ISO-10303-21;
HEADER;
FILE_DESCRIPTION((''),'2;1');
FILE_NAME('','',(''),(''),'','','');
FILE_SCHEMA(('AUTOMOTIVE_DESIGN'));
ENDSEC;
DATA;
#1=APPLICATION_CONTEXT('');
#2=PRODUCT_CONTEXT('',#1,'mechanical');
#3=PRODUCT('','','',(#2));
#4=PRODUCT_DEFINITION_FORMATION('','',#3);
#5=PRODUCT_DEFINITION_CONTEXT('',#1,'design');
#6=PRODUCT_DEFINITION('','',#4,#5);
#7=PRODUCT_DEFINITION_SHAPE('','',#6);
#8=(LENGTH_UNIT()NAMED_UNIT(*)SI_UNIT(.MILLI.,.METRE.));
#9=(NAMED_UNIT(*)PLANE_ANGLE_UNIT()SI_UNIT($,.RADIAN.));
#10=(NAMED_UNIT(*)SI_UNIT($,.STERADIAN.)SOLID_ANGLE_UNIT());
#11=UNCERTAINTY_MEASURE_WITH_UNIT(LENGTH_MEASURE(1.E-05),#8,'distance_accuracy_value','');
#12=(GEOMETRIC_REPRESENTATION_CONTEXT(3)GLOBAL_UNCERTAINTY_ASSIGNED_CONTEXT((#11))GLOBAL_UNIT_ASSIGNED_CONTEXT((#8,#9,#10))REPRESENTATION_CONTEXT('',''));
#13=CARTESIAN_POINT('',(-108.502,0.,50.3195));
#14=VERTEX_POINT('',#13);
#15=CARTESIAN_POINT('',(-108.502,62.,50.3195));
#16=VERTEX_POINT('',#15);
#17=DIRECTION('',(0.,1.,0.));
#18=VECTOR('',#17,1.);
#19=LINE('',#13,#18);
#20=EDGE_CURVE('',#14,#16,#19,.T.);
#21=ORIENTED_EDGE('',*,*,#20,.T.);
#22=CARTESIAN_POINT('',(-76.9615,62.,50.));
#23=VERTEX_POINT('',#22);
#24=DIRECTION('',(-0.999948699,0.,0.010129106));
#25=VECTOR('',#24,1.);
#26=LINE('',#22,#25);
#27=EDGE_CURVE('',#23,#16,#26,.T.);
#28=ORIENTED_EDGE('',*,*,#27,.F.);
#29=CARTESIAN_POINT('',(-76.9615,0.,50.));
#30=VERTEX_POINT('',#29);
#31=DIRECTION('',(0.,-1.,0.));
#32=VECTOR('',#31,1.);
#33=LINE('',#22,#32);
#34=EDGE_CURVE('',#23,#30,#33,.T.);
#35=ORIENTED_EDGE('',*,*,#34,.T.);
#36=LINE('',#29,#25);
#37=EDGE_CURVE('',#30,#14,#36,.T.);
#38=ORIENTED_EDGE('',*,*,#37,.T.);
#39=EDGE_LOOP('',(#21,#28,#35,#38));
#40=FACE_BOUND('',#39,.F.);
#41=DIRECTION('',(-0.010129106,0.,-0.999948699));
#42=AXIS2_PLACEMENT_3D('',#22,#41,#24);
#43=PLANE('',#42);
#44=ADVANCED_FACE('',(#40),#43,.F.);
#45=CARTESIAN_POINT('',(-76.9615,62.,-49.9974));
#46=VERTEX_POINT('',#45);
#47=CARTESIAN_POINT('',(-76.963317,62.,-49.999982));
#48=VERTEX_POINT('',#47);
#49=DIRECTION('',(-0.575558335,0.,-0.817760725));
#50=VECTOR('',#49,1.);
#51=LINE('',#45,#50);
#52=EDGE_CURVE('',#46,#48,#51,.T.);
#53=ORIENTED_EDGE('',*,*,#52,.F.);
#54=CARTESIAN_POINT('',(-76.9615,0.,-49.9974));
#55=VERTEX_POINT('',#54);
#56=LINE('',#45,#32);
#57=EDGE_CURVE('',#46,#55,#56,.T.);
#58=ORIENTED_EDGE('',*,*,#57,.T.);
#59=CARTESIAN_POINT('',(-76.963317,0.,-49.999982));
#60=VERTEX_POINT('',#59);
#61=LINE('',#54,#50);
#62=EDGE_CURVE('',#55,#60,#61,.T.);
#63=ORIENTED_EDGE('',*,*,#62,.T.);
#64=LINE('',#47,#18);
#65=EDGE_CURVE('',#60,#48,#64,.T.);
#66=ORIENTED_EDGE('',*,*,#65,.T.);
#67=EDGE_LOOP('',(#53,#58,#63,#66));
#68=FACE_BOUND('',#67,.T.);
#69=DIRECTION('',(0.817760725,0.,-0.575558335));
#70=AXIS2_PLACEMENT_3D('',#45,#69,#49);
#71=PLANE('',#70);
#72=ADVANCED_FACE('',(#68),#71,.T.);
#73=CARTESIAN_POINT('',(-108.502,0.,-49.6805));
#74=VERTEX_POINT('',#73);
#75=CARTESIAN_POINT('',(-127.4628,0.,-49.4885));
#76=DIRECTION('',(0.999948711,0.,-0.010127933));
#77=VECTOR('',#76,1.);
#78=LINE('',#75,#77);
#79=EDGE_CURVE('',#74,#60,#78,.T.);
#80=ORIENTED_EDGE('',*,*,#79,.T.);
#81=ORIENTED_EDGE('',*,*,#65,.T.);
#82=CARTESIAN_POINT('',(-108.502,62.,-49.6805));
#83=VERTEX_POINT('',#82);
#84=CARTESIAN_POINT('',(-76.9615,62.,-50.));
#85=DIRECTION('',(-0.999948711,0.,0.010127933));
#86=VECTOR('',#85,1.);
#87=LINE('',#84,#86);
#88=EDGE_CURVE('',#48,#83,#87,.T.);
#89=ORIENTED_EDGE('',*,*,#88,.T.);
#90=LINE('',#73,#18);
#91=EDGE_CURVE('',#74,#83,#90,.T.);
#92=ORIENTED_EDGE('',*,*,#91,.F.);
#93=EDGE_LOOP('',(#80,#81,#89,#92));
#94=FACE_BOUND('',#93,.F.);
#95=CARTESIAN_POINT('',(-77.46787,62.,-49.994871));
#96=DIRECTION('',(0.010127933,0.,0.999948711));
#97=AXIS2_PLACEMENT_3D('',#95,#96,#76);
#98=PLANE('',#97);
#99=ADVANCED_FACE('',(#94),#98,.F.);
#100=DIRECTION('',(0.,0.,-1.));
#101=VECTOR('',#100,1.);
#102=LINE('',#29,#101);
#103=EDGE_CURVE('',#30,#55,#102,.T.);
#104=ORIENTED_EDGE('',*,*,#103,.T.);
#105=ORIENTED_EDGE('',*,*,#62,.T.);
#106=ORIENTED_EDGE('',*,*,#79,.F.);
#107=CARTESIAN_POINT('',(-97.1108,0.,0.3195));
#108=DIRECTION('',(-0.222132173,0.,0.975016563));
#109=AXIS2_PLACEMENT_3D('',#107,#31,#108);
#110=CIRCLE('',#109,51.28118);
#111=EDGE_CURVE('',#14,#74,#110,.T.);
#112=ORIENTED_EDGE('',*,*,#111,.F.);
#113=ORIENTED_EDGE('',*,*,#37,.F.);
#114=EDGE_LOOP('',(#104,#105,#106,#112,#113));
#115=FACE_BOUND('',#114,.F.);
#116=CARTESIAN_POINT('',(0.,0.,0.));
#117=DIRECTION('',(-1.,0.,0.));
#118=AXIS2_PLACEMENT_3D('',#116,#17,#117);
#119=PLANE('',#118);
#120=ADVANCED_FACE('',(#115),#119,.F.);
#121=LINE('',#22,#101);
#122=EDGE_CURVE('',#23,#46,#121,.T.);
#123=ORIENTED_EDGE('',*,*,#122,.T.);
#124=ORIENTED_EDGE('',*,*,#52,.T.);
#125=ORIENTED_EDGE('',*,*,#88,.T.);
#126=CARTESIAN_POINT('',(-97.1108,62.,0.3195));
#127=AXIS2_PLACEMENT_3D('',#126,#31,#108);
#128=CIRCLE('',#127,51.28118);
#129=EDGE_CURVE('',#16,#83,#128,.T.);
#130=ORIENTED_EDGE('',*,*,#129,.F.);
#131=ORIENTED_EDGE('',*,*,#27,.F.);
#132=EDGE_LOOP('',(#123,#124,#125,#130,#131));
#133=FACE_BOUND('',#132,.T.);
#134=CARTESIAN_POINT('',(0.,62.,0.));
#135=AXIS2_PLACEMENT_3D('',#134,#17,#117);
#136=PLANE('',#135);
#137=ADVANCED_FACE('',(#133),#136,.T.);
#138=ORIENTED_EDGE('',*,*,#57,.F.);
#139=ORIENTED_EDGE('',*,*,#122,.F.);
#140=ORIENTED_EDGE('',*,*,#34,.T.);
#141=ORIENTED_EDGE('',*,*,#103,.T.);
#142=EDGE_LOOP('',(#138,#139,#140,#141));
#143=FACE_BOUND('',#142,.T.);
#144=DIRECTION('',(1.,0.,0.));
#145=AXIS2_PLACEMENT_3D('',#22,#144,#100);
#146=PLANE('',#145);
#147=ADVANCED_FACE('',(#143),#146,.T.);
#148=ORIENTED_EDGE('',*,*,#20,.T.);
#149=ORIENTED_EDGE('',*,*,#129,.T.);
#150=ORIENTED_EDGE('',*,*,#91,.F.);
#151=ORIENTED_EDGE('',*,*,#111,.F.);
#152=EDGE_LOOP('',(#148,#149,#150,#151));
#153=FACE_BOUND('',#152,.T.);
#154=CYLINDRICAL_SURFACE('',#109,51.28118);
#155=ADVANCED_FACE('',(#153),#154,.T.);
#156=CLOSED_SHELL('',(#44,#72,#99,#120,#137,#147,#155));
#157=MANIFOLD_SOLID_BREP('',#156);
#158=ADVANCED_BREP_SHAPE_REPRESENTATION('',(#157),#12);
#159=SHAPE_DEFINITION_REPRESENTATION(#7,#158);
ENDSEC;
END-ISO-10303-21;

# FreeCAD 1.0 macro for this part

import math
import FreeCAD as App
import Part
import Sketcher

V = App.Vector
Q = App.Units.Quantity


def add_polygon(sketch, points):
    """Adds a closed chain of lines whose ends are joined by coincident constraints."""
    first, n = sketch.GeometryCount, len(points)
    for a, b in zip(points, points[1:] + points[:1]):
        sketch.addGeometry(Part.LineSegment(App.Vector(*a, 0), App.Vector(*b, 0)), False)
    for i in range(n):
        sketch.addConstraint(Sketcher.Constraint("Coincident", first + i, 2, first + (i + 1) % n, 1))

doc = App.newDocument("Part")
body = doc.addObject("PartDesign::Body", "Body")

# Sketch on XZ plane
sketch1 = body.newObject("Sketcher::SketchObject", "Sketch")
sketch1.AttachmentSupport = (doc.getObject("XZ_Plane"), [""])
sketch1.MapMode = "FlatFace"
add_polygon(sketch1, [(-25, -100), (-25, 100), (25, 100), (25, -100)])  # lines 0-3
sketch1.addConstraint([
    Sketcher.Constraint("Vertical", 0),
    Sketcher.Constraint("Horizontal", 1),
    Sketcher.Constraint("Vertical", 2),
    Sketcher.Constraint("Horizontal", 3),
    Sketcher.Constraint("Symmetric", 0, 2, 2, 2, -1, 1),
    Sketcher.Constraint("DistanceX", 1, 1, 1, 2, Q("50 mm")),
    Sketcher.Constraint("DistanceY", 0, 1, 0, 2, Q("200 mm")),
])
pad1 = body.newObject("PartDesign::Pad", "Pad")
pad1.Profile = sketch1
pad1.Length = 62
pad1.Reversed = True

# Sketch on XY plane
sketch2 = body.newObject("Sketcher::SketchObject", "Sketch001")
sketch2.AttachmentSupport = (doc.getObject("XY_Plane"), [""])
sketch2.MapMode = "FlatFace"
sketch2.AttachmentOffset = App.Placement(V(0, 0, 100), App.Rotation())
add_polygon(sketch2, [(65, 62), (25, 62), (25, 0), (28.2, 0), (65, 42)])  # lines 0-4
sketch2.addConstraint([
    Sketcher.Constraint("Horizontal", 0),
    Sketcher.Constraint("Vertical", 1),
    Sketcher.Constraint("Horizontal", 2),
    Sketcher.Constraint("Vertical", 4),
    Sketcher.Constraint("PointOnObject", 1, 2, -1),
    Sketcher.Constraint("DistanceX", 0, 2, 0, 1, Q("40 mm")),
    Sketcher.Constraint("DistanceY", 4, 1, 4, 2, Q("20 mm")),
    Sketcher.Constraint("DistanceY", 1, 2, 1, 1, Q("62 mm")),
    Sketcher.Constraint("DistanceX", -1, 1, 0, 2, Q("25 mm")),
    Sketcher.Constraint("DistanceX", 2, 1, 2, 2, Q("3.229 mm")),
])
pad2 = body.newObject("PartDesign::Pad", "Pad001")
pad2.Profile = sketch2
pad2.Length = 200
pad2.Reversed = True

# Sketch on XZ plane
sketch3 = body.newObject("Sketcher::SketchObject", "Sketch002")
sketch3.AttachmentSupport = (doc.getObject("XZ_Plane"), [""])
sketch3.MapMode = "FlatFace"
sketch3.AttachmentOffset = App.Placement(V(0, 0, -62), App.Rotation())
sketch3.addGeometry([
    Part.LineSegment(V(-25, 80, 0), V(-25, -80, 0)),  # 0
    Part.LineSegment(V(-25, -80, 0), V(-77, -50, 0)),  # 1
    Part.LineSegment(V(-77, -50, 0), V(-127, -49, 0)),  # 2
    Part.ArcOfCircle(Part.Circle(V(-127, 1, 0), V(0, 0, 1), 50), math.radians(89), math.radians(269)),  # 3
    Part.LineSegment(V(-126, 51, 0), V(-77, 50, 0)),  # 4
    Part.LineSegment(V(-77, 50, 0), V(-25, 80, 0)),  # 5
], False)
sketch3.addConstraint([
    Sketcher.Constraint("Coincident", 0, 2, 1, 1),
    Sketcher.Constraint("Coincident", 1, 2, 2, 1),
    Sketcher.Constraint("Tangent", 2, 2, 3, 2),
    Sketcher.Constraint("Tangent", 3, 1, 4, 1),
    Sketcher.Constraint("Coincident", 4, 2, 5, 1),
    Sketcher.Constraint("Coincident", 5, 2, 0, 1),
    Sketcher.Constraint("Vertical", 0),
    Sketcher.Constraint("Symmetric", 1, 2, 4, 2, -1),
    Sketcher.Constraint("Parallel", 2, 4),
    Sketcher.Constraint("Equal", 1, 5),
    Sketcher.Constraint("Distance", 1, Q("60 mm")),
    Sketcher.Constraint("DistanceY", 0, 2, 0, 1, Q("160 mm")),
    Sketcher.Constraint("Angle", 1, Q("150 deg")),
    Sketcher.Constraint("DistanceX", 0, 2, -1, 1, Q("25 mm")),
    Sketcher.Constraint("Angle", 2, Q("179.4197 deg")),
    Sketcher.Constraint("DistanceX", 3, 1, -1, 1, Q("126.45 mm")),
])
pad3 = body.newObject("PartDesign::Pad", "Pad002")
pad3.Profile = sketch3
pad3.Length = 62

# Sketch on XZ plane
sketch4 = body.newObject("Sketcher::SketchObject", "Sketch003")
sketch4.AttachmentSupport = (doc.getObject("XZ_Plane"), [""])
sketch4.MapMode = "FlatFace"
sketch4.AttachmentOffset = App.Placement(V(0, 0, -62), App.Rotation())
add_polygon(sketch4, [(136, -128), (29, -198), (-144, -145), (-77, -50), (-77, 50), (-110, 169), (-5, 157), (110, 246), (136, 104)])  # lines 0-8
sketch4.addConstraint([
    Sketcher.Constraint("Vertical", 3),
    Sketcher.Constraint("Vertical", 8),
    Sketcher.Constraint("DistanceY", -1, 1, 3, 2, Q("50 mm")),
    Sketcher.Constraint("DistanceY", 8, 2, 8, 1, Q("232.22 mm")),
    Sketcher.Constraint("Angle", 6, Q("37.7197 deg")),
    Sketcher.Constraint("DistanceX", 4, 2, 7, 2, Q("246.1 mm")),
    Sketcher.Constraint("DistanceX", 5, 2, 6, 2, Q("115.21 mm")),
    Sketcher.Constraint("Distance", 0, Q("127.068 mm")),
    Sketcher.Constraint("Distance", 1, Q("181.122 mm")),
    Sketcher.Constraint("DistanceY", 3, 1, 3, 2, Q("99.9974 mm")),
    Sketcher.Constraint("DistanceY", 0, 2, -1, 1, Q("197.567 mm")),
    Sketcher.Constraint("DistanceX", 1, 2, -1, 1, Q("143.865 mm")),
    Sketcher.Constraint("DistanceY", 1, 2, -1, 1, Q("145.055 mm")),
    Sketcher.Constraint("DistanceY", -1, 1, 7, 2, Q("104.409 mm")),
    Sketcher.Constraint("DistanceX", 2, 2, 0, 2, Q("106.439 mm")),
    Sketcher.Constraint("DistanceX", 4, 2, 5, 2, Q("105.238 mm")),
    Sketcher.Constraint("DistanceY", 2, 2, 5, 2, Q("206.611 mm")),
    Sketcher.Constraint("DistanceY", 4, 2, 6, 2, Q("76.277 mm")),
])
pocket1 = body.newObject("PartDesign::Pocket", "Pocket")
pocket1.Profile = sketch4
pocket1.Length = 62
pocket1.Reversed = True

# Sketch on XZ plane
sketch5 = body.newObject("Sketcher::SketchObject", "Sketch004")
sketch5.AttachmentSupport = (doc.getObject("XZ_Plane"), [""])
sketch5.MapMode = "FlatFace"
sketch5.AttachmentOffset = App.Placement(V(0, 0, -62), App.Rotation())
add_polygon(sketch5, [(136, -128), (29, -198), (-144, -145), (-77, -50), (-77, 50), (-110, 169), (-5, 157), (110, 246), (136, 104)])  # lines 0-8
sketch5.addConstraint([
    Sketcher.Constraint("Vertical", 3),
    Sketcher.Constraint("Vertical", 8),
    Sketcher.Constraint("DistanceY", -1, 1, 3, 2, Q("50 mm")),
    Sketcher.Constraint("DistanceY", 8, 2, 8, 1, Q("232.22 mm")),
    Sketcher.Constraint("Angle", 6, Q("37.7197 deg")),
    Sketcher.Constraint("DistanceX", 4, 2, 7, 2, Q("246.1 mm")),
    Sketcher.Constraint("DistanceX", 5, 2, 6, 2, Q("115.21 mm")),
    Sketcher.Constraint("Distance", 0, Q("127.068 mm")),
    Sketcher.Constraint("Distance", 1, Q("181.122 mm")),
    Sketcher.Constraint("DistanceY", 3, 1, 3, 2, Q("99.9974 mm")),
    Sketcher.Constraint("DistanceY", 0, 2, -1, 1, Q("197.567 mm")),
    Sketcher.Constraint("DistanceX", 1, 2, -1, 1, Q("143.865 mm")),
    Sketcher.Constraint("DistanceY", 1, 2, -1, 1, Q("145.055 mm")),
    Sketcher.Constraint("DistanceY", -1, 1, 7, 2, Q("104.409 mm")),
    Sketcher.Constraint("DistanceX", 2, 2, 0, 2, Q("106.439 mm")),
    Sketcher.Constraint("DistanceX", 4, 2, 5, 2, Q("105.238 mm")),
    Sketcher.Constraint("DistanceY", 2, 2, 5, 2, Q("206.611 mm")),
    Sketcher.Constraint("DistanceY", 4, 2, 6, 2, Q("76.277 mm")),
])
pocket2 = body.newObject("PartDesign::Pocket", "Pocket001")
pocket2.Profile = sketch5
pocket2.Length = 62
pocket2.Reversed = True

# Sketch on XZ plane
sketch6 = body.newObject("Sketcher::SketchObject", "Sketch005")
sketch6.AttachmentSupport = (doc.getObject("XZ_Plane"), [""])
sketch6.MapMode = "FlatFace"
sketch6.addGeometry([
    Part.ArcOfCircle(Part.Circle(V(-131, 0, 0), V(0, 0, 1), 55), math.radians(66), math.radians(294)),
    Part.ArcOfCircle(Part.Circle(V(-97, 0, 0), V(0, 0, 1), 51), math.radians(103), math.radians(257)),
], False)
sketch6.addConstraint([
    Sketcher.Constraint("Coincident", 0, 1, 1, 1),
    Sketcher.Constraint("Coincident", 1, 2, 0, 2),
    Sketcher.Constraint("Horizontal", 0, 3, 1, 3),
    Sketcher.Constraint("DistanceY", 1, 3, 0, 1, Q("50 mm")),
    Sketcher.Constraint("Radius", 0, Q("54.8493 mm")),
    Sketcher.Constraint("Radius", 1, Q("51.2812 mm")),
    Sketcher.Constraint("DistanceX", 0, 1, -1, 1, Q("108.502 mm")),
    Sketcher.Constraint("DistanceY", -1, 1, 0, 3, Q("0.3195 mm")),
])
pocket3 = body.newObject("PartDesign::Pocket", "Pocket002")
pocket3.Profile = sketch6
pocket3.Length = 62

doc.recompute()
